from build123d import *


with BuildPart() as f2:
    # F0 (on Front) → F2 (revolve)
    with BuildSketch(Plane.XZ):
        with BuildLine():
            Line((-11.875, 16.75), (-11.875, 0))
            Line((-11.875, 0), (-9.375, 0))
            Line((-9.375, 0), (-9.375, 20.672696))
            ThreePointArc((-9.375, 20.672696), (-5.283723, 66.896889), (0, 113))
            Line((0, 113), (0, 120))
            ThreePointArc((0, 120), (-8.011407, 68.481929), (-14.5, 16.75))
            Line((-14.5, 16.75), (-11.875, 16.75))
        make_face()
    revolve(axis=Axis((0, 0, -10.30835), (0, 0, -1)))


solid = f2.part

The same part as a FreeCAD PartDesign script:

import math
import FreeCAD as App
import Part
import Sketcher

doc = App.newDocument("Part")
body = doc.addObject("PartDesign::Body", "Body")

# Sketch on XZ plane
sketch1 = doc.addObject("Sketcher::SketchObject", "Sketch")
body.addObject(sketch1)
sketch1.AttachmentSupport = (doc.XZ_Plane, [""])
sketch1.MapMode = "FlatFace"
sketch1.addGeometry([
    Part.LineSegment(App.Vector(-11.875, 16.75, 0), App.Vector(-11.875, 0, 0)),  # 0
    Part.LineSegment(App.Vector(-11.875, 0, 0), App.Vector(-9.375, 0, 0)),  # 1
    Part.LineSegment(App.Vector(-9.375, 0, 0), App.Vector(-9.375, 20.672696, 0)),  # 2
    Part.ArcOfCircle(Part.Circle(App.Vector(1782.166829, -114.602496, 0), App.Vector(0, 0, 1), 1796.641729), math.radians(172.72209), math.radians(175.681922)),  # 3
    Part.LineSegment(App.Vector(0, 113, 0), App.Vector(0, 120, 0)),  # 4
    Part.ArcOfCircle(Part.Circle(App.Vector(1742.511167, -177.354171, 0), App.Vector(0, 0, 1), 1767.70039), math.radians(170.315934), math.radians(173.695866)),  # 5
    Part.LineSegment(App.Vector(-14.5, 16.75, 0), App.Vector(-11.875, 16.75, 0)),  # 6
], False)
sketch1.addConstraint([
    Sketcher.Constraint("Coincident", 0, 2, 1, 1),
    Sketcher.Constraint("Coincident", 1, 2, 2, 1),
    Sketcher.Constraint("Coincident", 2, 2, 3, 2),
    Sketcher.Constraint("Coincident", 3, 1, 4, 1),
    Sketcher.Constraint("Coincident", 4, 2, 5, 1),
    Sketcher.Constraint("Coincident", 5, 2, 6, 1),
    Sketcher.Constraint("Coincident", 6, 2, 0, 1),
    Sketcher.Constraint("Vertical", 0),
    Sketcher.Constraint("Horizontal", 1),
    Sketcher.Constraint("Vertical", 2),
    Sketcher.Constraint("Vertical", 4),
    Sketcher.Constraint("Horizontal", 6),
    Sketcher.Constraint("PointOnObject", 0, 2, -1),
    Sketcher.Constraint("PointOnObject", 4, 2, -2),
    Sketcher.Constraint("DistanceY", 4, 1, 4, 2, 7.0),
    Sketcher.Constraint("DistanceX", 1, 1, 1, 2, 2.5),
    Sketcher.Constraint("DistanceY", -1, 1, 4, 2, 120.0),
    Sketcher.Constraint("DistanceY", 0, 2, 0, 1, 16.75),
    Sketcher.Constraint("DistanceX", 6, 1, 6, 2, 2.625),
    Sketcher.Constraint("Radius", 3, 1796.641729),
    Sketcher.Constraint("Radius", 5, 1767.70039),
    Sketcher.Constraint("DistanceX", 0, 2, -1, 1, 11.875),
    Sketcher.Constraint("DistanceY", 2, 1, 2, 2, 20.672696),
])
revolution = doc.addObject("PartDesign::Revolution", "Revolution")
body.addObject(revolution)
revolution.Profile = sketch1
revolution.ReferenceAxis = (sketch1, ["V_Axis"])
revolution.Angle = 360

doc.recompute()
